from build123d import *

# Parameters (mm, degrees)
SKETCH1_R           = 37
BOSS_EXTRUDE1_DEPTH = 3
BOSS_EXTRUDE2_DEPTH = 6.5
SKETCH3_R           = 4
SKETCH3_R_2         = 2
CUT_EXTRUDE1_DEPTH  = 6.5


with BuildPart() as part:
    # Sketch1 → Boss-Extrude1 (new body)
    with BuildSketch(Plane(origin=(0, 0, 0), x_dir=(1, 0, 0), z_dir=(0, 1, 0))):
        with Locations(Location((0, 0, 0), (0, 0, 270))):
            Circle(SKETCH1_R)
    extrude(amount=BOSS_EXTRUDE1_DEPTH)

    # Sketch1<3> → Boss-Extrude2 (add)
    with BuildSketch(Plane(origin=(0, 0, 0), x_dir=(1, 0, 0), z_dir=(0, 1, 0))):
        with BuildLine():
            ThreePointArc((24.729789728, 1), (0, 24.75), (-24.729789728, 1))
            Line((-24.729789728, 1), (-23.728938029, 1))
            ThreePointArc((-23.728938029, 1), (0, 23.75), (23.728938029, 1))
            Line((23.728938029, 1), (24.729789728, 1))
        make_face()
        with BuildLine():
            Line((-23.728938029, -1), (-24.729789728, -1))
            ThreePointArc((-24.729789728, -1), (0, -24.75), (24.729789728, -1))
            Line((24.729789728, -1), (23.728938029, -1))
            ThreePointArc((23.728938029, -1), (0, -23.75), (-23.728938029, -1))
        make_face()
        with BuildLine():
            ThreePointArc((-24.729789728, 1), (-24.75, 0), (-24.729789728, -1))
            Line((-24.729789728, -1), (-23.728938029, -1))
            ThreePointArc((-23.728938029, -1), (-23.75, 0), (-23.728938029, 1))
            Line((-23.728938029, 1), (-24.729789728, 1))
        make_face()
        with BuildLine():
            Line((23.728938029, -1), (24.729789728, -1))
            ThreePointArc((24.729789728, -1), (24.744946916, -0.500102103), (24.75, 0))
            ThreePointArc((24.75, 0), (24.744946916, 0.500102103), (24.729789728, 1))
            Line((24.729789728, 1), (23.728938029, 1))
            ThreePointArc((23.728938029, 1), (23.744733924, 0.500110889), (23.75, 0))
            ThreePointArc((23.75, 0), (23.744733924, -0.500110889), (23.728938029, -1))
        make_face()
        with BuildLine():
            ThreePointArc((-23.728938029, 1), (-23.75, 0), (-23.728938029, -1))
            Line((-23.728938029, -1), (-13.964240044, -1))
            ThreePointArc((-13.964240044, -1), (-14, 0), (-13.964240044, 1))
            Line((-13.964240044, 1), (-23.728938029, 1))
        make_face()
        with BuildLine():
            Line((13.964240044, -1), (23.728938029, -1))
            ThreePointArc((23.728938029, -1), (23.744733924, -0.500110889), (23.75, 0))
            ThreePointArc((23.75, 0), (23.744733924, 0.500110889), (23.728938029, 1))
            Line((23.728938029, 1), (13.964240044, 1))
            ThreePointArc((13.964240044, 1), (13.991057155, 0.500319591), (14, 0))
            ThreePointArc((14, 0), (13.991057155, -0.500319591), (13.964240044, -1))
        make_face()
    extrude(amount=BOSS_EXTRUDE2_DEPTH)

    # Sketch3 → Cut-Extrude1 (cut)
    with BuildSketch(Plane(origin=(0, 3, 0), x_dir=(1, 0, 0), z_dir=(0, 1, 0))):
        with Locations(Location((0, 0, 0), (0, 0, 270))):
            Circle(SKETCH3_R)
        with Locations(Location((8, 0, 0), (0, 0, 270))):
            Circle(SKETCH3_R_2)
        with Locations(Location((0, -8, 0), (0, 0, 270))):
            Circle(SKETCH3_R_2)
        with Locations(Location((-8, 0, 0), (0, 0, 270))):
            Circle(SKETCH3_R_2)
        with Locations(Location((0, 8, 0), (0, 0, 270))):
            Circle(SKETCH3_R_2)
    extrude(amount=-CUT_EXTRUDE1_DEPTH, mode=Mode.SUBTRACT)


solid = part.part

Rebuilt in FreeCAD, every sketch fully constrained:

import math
import FreeCAD as App
import Part
import Sketcher
from FreeCAD import Vector

doc = App.newDocument("Part")
params = doc.addObject("Spreadsheet::Sheet", "Params")
for row, (alias, value) in enumerate([
    ("sketch1_diameter", "74 mm"),
    ("pad1_length", "3 mm"),
    ("sketch2_radius", "14 mm"),
    ("sketch2_radius2", "24.750001 mm"),
    ("sketch2_radius3", "23.75 mm"),
    ("pad2_length", "6.5 mm"),
    ("sketch3_diameter", "8 mm"),
    ("sketch3_diameter2", "4 mm"),
    ("pocket1_length", "6.5 mm"),
], start=1):
    params.set(f"A{row}", alias)
    params.set(f"B{row}", "=" + value)
    params.setAlias(f"B{row}", alias)

body = doc.addObject("PartDesign::Body", "Body")

# Sketch on XZ plane
sketch1 = doc.addObject("Sketcher::SketchObject", "Sketch")
body.addObject(sketch1)
sketch1.AttachmentSupport = (doc.XZ_Plane, [""])
sketch1.MapMode = "FlatFace"
sketch1.addGeometry(Part.Circle(Vector(0, 0, 0), Vector(0, 0, 1), 37), False)
sketch1.addConstraint(Sketcher.Constraint("Coincident", 0, 3, -1, 1))
sketch1.addConstraint(Sketcher.Constraint("Diameter", 0, 74.0))
sketch1.setExpression("Constraints[1]", "Params.sketch1_diameter")
pad1 = doc.addObject("PartDesign::Pad", "Pad")
body.addObject(pad1)
pad1.Profile = sketch1
pad1.setExpression("Length", "Params.pad1_length")
pad1.Reversed = True

# Sketch on XZ plane
sketch2 = doc.addObject("Sketcher::SketchObject", "Sketch001")
body.addObject(sketch2)
sketch2.AttachmentSupport = (doc.XZ_Plane, [""])
sketch2.MapMode = "FlatFace"
sketch2.addGeometry(Part.ArcOfCircle(Part.Circle(Vector(0, 0, 0), Vector(0, 0, 1), 24.8), math.radians(0), math.radians(2.32)), False)
sketch2.addGeometry(Part.ArcOfCircle(Part.Circle(Vector(0, 0, 0), Vector(0, 0, 1), 24.8), math.radians(-2.32), math.radians(0)), False)
sketch2.addGeometry(Part.ArcOfCircle(Part.Circle(Vector(0, 0, 0), Vector(0, 0, 1), 24.8), math.radians(-178), math.radians(-2)), False)
sketch2.addGeometry(Part.ArcOfCircle(Part.Circle(Vector(0, 0, 0), Vector(0, 0, 1), 24.7), math.radians(177.68), math.radians(182.32)), False)
sketch2.addGeometry(Part.ArcOfCircle(Part.Circle(Vector(0, 0, 0), Vector(0, 0, 1), 24.8), math.radians(2), math.radians(178)), False)
sketch2.addGeometry(Part.ArcOfCircle(Part.Circle(Vector(0, 0, 0), Vector(0, 0, 1), 23.8), math.radians(-178), math.radians(-2)), False)
sketch2.addGeometry(Part.LineSegment(Vector(23.7, -1, 0), Vector(14, -1, 0)), False)
sketch2.addGeometry(Part.ArcOfCircle(Part.Circle(Vector(0, 0, 0), Vector(0, 0, 1), 14), math.radians(-4.1), math.radians(0)), False)
sketch2.addGeometry(Part.ArcOfCircle(Part.Circle(Vector(0, 0, 0), Vector(0, 0, 1), 14), math.radians(0), math.radians(4.1)), False)
sketch2.addGeometry(Part.LineSegment(Vector(14, 1, 0), Vector(23.7, 1, 0)), False)
sketch2.addGeometry(Part.ArcOfCircle(Part.Circle(Vector(0, 0, 0), Vector(0, 0, 1), 23.8), math.radians(2), math.radians(178)), False)
sketch2.addGeometry(Part.LineSegment(Vector(-23.7, 1, 0), Vector(-14, 1, 0)), False)
sketch2.addGeometry(Part.ArcOfCircle(Part.Circle(Vector(0, 0, 0), Vector(0, 0, 1), 14), math.radians(175.9), math.radians(184.1)), False)
sketch2.addGeometry(Part.LineSegment(Vector(-14, -1, 0), Vector(-23.7, -1, 0)), False)
sketch2.addConstraint(Sketcher.Constraint("Tangent", 0, 1, 1, 2))
sketch2.addConstraint(Sketcher.Constraint("Tangent", 1, 1, 2, 2))
sketch2.addConstraint(Sketcher.Constraint("Tangent", 2, 1, 3, 2))
sketch2.addConstraint(Sketcher.Constraint("Tangent", 3, 1, 4, 2))
sketch2.addConstraint(Sketcher.Constraint("Tangent", 4, 1, 0, 2))
sketch2.addConstraint(Sketcher.Constraint("Coincident", 5, 2, 6, 1))
sketch2.addConstraint(Sketcher.Constraint("Coincident", 6, 2, 7, 1))
sketch2.addConstraint(Sketcher.Constraint("Tangent", 7, 2, 8, 1))
sketch2.addConstraint(Sketcher.Constraint("Coincident", 8, 2, 9, 1))
sketch2.addConstraint(Sketcher.Constraint("Coincident", 9, 2, 10, 1))
sketch2.addConstraint(Sketcher.Constraint("Coincident", 10, 2, 11, 1))
sketch2.addConstraint(Sketcher.Constraint("Coincident", 11, 2, 12, 1))
sketch2.addConstraint(Sketcher.Constraint("Coincident", 12, 2, 13, 1))
sketch2.addConstraint(Sketcher.Constraint("Coincident", 13, 2, 5, 1))
sketch2.addConstraint(Sketcher.Constraint("Horizontal", 6))
sketch2.addConstraint(Sketcher.Constraint("Horizontal", 9))
sketch2.addConstraint(Sketcher.Constraint("Horizontal", 11))
sketch2.addConstraint(Sketcher.Constraint("Horizontal", 13))
sketch2.addConstraint(Sketcher.Constraint("Coincident", 0, 3, -1, 1))
sketch2.addConstraint(Sketcher.Constraint("Coincident", 2, 3, -1, 1))
sketch2.addConstraint(Sketcher.Constraint("Coincident", 5, 3, -1, 1))
sketch2.addConstraint(Sketcher.Constraint("Coincident", 7, 3, -1, 1))
sketch2.addConstraint(Sketcher.Constraint("Coincident", 10, 3, -1, 1))
sketch2.addConstraint(Sketcher.Constraint("Coincident", 12, 3, -1, 1))
sketch2.addConstraint(Sketcher.Constraint("Equal", 7, 8))
sketch2.addConstraint(Sketcher.Constraint("Equal", 5, 10))
sketch2.addConstraint(Sketcher.Constraint("Equal", 8, 12))
sketch2.addConstraint(Sketcher.Constraint("PointOnObject", 0, 1, -1))
sketch2.addConstraint(Sketcher.Constraint("PointOnObject", 7, 2, -1))
sketch2.addConstraint(Sketcher.Constraint("Horizontal", 1, 1, 2, 1))
sketch2.addConstraint(Sketcher.Constraint("Horizontal", 3, 1, 4, 1))
sketch2.addConstraint(Sketcher.Constraint("Horizontal", 2, 1, 5, 2))
sketch2.addConstraint(Sketcher.Constraint("Horizontal", 4, 1, 8, 2))
sketch2.addConstraint(Sketcher.Constraint("Horizontal", 9, 2, 10, 2))
sketch2.addConstraint(Sketcher.Constraint("Horizontal", 6, 2, 12, 2))
sketch2.addConstraint(Sketcher.Constraint("Vertical", 2, 1, 3, 1))
sketch2.addConstraint(Sketcher.Constraint("Radius", 7, 14.0))
sketch2.addConstraint(Sketcher.Constraint("Radius", 0, 24.750001))
sketch2.addConstraint(Sketcher.Constraint("Radius", 5, 23.75))
sketch2.addConstraint(Sketcher.Constraint("DistanceY", 1, 1, -1, 1, 1.0))
sketch2.setExpression("Constraints[36]", "Params.sketch2_radius")
sketch2.setExpression("Constraints[37]", "Params.sketch2_radius2")
sketch2.setExpression("Constraints[38]", "Params.sketch2_radius3")
pad2 = doc.addObject("PartDesign::Pad", "Pad001")
body.addObject(pad2)
pad2.Profile = sketch2
pad2.setExpression("Length", "Params.pad2_length")
pad2.Reversed = True

# Sketch on XZ plane
sketch3 = doc.addObject("Sketcher::SketchObject", "Sketch002")
body.addObject(sketch3)
sketch3.AttachmentSupport = (doc.XZ_Plane, [""])
sketch3.MapMode = "FlatFace"
sketch3.AttachmentOffset = App.Placement(Vector(0, 0, -3), App.Rotation())
sketch3.addGeometry(Part.Circle(Vector(0, 0, 0), Vector(0, 0, 1), 4), False)
sketch3.addGeometry(Part.Circle(Vector(8, 0, 0), Vector(0, 0, 1), 2), False)
sketch3.addGeometry(Part.Circle(Vector(0, 8, 0), Vector(0, 0, 1), 2), False)
sketch3.addGeometry(Part.Circle(Vector(-8, 0, 0), Vector(0, 0, 1), 2), False)
sketch3.addGeometry(Part.Circle(Vector(0, -8, 0), Vector(0, 0, 1), 2), False)
sketch3.addConstraint(Sketcher.Constraint("Coincident", 0, 3, -1, 1))
sketch3.addConstraint(Sketcher.Constraint("Equal", 1, 2))
sketch3.addConstraint(Sketcher.Constraint("Equal", 2, 3))
sketch3.addConstraint(Sketcher.Constraint("Equal", 3, 4))
sketch3.addConstraint(Sketcher.Constraint("Symmetric", 1, 3, 3, 3, -1, 1))
sketch3.addConstraint(Sketcher.Constraint("Symmetric", 2, 3, 4, 3, -1, 1))
sketch3.addConstraint(Sketcher.Constraint("PointOnObject", 1, 3, -1))
sketch3.addConstraint(Sketcher.Constraint("PointOnObject", 2, 3, -2))
sketch3.addConstraint(Sketcher.Constraint("Diameter", 0, 8.0))
sketch3.addConstraint(Sketcher.Constraint("Diameter", 1, 4.0))
sketch3.addConstraint(Sketcher.Constraint("DistanceX", -1, 1, 1, 3, 8.0))
sketch3.addConstraint(Sketcher.Constraint("DistanceY", -1, 1, 2, 3, 8.0))
sketch3.setExpression("Constraints[8]", "Params.sketch3_diameter")
sketch3.setExpression("Constraints[9]", "Params.sketch3_diameter2")
pocket1 = doc.addObject("PartDesign::Pocket", "Pocket")
body.addObject(pocket1)
pocket1.Profile = sketch3
pocket1.setExpression("Length", "Params.pocket1_length")
pocket1.Reversed = True

doc.recompute()
